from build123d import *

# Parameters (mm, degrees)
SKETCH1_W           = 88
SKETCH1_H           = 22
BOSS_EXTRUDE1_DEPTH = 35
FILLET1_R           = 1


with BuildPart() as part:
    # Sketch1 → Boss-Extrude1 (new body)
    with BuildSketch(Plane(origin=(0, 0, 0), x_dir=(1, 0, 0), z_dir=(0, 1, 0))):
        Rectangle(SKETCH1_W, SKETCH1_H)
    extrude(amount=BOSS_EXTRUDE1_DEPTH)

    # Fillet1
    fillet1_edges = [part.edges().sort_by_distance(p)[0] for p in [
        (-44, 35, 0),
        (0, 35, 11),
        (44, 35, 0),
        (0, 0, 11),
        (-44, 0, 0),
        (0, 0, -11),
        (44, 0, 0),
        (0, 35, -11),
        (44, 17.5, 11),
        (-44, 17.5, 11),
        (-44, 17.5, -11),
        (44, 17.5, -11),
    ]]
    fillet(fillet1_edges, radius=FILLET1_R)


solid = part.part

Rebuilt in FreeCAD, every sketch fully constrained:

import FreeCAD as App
import Part
import Sketcher
from FreeCAD import Vector
Q = App.Units.Quantity

doc = App.newDocument("Part")
body = doc.addObject("PartDesign::Body", "Body")

sketch1 = body.newObject("Sketcher::SketchObject", "Sketch")
sketch1.AttachmentSupport = (doc.getObject("XZ_Plane"), [""])
sketch1.MapMode = "FlatFace"
sketch1.addGeometry([
    Part.LineSegment(Vector(-44, -11, 0), Vector(-44, 11, 0)),
    Part.LineSegment(Vector(-44, 11, 0), Vector(44, 11, 0)),
    Part.LineSegment(Vector(44, 11, 0), Vector(44, -11, 0)),
    Part.LineSegment(Vector(44, -11, 0), Vector(-44, -11, 0)),
], False)
sketch1.addConstraint([
    Sketcher.Constraint("Coincident", 0, 2, 1, 1),
    Sketcher.Constraint("Coincident", 1, 2, 2, 1),
    Sketcher.Constraint("Coincident", 2, 2, 3, 1),
    Sketcher.Constraint("Coincident", 3, 2, 0, 1),
    Sketcher.Constraint("Vertical", 0),
    Sketcher.Constraint("Horizontal", 1),
    Sketcher.Constraint("Vertical", 2),
    Sketcher.Constraint("Horizontal", 3),
    Sketcher.Constraint("Symmetric", 0, 2, 2, 2, -1, 1),
    Sketcher.Constraint("DistanceX", 1, 1, 1, 2, Q("88 mm")),
    Sketcher.Constraint("DistanceY", 0, 1, 0, 2, Q("22 mm")),
])
pad1 = body.newObject("PartDesign::Pad", "Pad")
pad1.Profile = sketch1
pad1.Length = 35
pad1.Reversed = True
doc.recompute()

fillet = body.newObject("PartDesign::Fillet", "Fillet")
fillet.Base = (pad1, ["Edge1"])
fillet.UseAllEdges = True
fillet.Radius = 1

doc.recompute()
